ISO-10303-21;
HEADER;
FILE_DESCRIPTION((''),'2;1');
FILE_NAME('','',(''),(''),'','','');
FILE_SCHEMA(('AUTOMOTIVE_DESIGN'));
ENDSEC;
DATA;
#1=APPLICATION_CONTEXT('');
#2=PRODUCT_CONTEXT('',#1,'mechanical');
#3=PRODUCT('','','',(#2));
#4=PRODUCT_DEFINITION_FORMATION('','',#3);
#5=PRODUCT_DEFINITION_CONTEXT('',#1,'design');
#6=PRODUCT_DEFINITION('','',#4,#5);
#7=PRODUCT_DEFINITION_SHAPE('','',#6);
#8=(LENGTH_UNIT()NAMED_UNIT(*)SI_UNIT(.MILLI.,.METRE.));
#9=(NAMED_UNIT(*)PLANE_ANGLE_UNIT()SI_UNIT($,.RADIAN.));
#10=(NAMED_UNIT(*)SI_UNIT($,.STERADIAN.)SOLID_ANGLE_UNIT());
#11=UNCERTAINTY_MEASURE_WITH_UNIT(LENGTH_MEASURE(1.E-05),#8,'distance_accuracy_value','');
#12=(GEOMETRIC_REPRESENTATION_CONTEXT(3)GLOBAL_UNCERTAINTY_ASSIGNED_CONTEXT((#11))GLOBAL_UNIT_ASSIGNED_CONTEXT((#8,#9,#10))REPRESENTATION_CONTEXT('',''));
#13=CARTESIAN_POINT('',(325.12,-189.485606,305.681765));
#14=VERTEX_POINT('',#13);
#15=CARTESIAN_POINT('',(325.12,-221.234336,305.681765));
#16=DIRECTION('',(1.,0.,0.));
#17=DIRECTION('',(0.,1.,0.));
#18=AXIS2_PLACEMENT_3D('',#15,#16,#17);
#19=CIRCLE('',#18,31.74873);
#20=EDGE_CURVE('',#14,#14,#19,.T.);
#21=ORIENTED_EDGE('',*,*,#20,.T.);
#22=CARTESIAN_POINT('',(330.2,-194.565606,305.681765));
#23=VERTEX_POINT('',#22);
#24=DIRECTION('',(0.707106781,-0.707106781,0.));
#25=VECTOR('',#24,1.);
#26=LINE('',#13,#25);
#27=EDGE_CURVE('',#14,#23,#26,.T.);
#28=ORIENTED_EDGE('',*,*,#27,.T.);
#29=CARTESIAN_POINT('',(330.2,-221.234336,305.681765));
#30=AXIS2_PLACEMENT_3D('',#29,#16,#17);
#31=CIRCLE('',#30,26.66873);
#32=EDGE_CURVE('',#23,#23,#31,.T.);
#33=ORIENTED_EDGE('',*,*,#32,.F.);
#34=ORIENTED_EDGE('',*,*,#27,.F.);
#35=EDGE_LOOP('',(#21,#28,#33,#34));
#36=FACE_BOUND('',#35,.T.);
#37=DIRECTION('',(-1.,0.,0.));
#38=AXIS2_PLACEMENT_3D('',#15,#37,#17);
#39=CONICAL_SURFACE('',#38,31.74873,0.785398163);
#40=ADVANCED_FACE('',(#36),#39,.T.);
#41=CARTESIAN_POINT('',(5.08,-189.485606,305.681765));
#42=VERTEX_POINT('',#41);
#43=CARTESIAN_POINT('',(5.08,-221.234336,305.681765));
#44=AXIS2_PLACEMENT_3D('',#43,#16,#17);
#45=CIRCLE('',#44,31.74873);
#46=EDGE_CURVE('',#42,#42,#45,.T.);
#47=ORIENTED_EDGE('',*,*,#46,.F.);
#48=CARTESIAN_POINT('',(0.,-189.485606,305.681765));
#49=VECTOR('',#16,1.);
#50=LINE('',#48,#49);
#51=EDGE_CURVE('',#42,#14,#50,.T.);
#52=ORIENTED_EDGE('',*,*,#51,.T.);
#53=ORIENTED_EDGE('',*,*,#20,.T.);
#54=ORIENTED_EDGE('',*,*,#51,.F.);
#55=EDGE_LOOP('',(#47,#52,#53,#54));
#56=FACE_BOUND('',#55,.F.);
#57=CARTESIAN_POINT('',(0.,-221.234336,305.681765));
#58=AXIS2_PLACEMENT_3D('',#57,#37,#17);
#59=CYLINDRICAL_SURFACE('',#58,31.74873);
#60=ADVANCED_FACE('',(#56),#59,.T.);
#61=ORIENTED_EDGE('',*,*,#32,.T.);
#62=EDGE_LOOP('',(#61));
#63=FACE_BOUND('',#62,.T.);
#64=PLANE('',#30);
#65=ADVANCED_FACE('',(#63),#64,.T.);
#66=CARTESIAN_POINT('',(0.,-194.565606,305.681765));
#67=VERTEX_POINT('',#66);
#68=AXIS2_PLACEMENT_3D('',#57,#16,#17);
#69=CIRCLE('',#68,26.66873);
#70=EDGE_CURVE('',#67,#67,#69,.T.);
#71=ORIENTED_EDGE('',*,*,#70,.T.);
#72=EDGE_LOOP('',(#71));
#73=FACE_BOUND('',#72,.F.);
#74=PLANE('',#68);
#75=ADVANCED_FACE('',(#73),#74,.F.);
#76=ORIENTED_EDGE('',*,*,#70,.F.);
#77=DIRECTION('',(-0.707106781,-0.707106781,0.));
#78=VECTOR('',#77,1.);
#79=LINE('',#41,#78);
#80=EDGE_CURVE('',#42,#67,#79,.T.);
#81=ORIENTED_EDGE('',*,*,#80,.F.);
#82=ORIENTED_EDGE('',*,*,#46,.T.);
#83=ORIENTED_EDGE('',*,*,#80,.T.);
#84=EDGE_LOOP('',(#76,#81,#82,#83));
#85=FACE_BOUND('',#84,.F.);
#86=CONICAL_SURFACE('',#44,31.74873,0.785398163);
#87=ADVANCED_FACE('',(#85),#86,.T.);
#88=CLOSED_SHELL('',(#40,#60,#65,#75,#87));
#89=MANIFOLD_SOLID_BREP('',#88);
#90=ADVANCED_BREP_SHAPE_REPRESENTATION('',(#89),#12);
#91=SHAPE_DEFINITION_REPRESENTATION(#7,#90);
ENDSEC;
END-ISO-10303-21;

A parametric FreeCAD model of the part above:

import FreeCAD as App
import Part
import Sketcher
Q = App.Units.Quantity


def edges_at(feature, points):
    """Names of the edges that pass closest to the given points."""
    edges = feature.Shape.Edges
    near = lambda p: min(range(len(edges)), key=lambda i: edges[i].distToShape(Part.Vertex(*p))[0])
    return sorted({f"Edge{near(p) + 1}" for p in points})

doc = App.newDocument("Part")
body = doc.addObject("PartDesign::Body", "Body")

sketch1 = doc.addObject("Sketcher::SketchObject", "Sketch")
body.addObject(sketch1)
sketch1.AttachmentSupport = (doc.YZ_Plane, [""])
sketch1.MapMode = "FlatFace"
sketch1.addGeometry(Part.Circle(App.Vector(-221, 306, 0), App.Vector(0, 0, 1), 32), False)
sketch1.addConstraint([
    Sketcher.Constraint("Diameter", 0, Q("2.4999 in")),
    Sketcher.Constraint("DistanceX", 0, 3, -1, 1, 221.234336),
    Sketcher.Constraint("DistanceY", -1, 1, 0, 3, 305.681765),
])
pad1 = doc.addObject("PartDesign::Pad", "Pad")
body.addObject(pad1)
pad1.Profile = sketch1
pad1.Length = Q("13 in")
doc.recompute()

chamfer = doc.addObject("PartDesign::Chamfer", "Chamfer")
body.addObject(chamfer)
chamfer.Base = (pad1, edges_at(pad1, [(330.2, -252.983, 305.682), (0, -252.983, 305.682)]))
chamfer.Size = Q("0.2 in")

doc.recompute()
